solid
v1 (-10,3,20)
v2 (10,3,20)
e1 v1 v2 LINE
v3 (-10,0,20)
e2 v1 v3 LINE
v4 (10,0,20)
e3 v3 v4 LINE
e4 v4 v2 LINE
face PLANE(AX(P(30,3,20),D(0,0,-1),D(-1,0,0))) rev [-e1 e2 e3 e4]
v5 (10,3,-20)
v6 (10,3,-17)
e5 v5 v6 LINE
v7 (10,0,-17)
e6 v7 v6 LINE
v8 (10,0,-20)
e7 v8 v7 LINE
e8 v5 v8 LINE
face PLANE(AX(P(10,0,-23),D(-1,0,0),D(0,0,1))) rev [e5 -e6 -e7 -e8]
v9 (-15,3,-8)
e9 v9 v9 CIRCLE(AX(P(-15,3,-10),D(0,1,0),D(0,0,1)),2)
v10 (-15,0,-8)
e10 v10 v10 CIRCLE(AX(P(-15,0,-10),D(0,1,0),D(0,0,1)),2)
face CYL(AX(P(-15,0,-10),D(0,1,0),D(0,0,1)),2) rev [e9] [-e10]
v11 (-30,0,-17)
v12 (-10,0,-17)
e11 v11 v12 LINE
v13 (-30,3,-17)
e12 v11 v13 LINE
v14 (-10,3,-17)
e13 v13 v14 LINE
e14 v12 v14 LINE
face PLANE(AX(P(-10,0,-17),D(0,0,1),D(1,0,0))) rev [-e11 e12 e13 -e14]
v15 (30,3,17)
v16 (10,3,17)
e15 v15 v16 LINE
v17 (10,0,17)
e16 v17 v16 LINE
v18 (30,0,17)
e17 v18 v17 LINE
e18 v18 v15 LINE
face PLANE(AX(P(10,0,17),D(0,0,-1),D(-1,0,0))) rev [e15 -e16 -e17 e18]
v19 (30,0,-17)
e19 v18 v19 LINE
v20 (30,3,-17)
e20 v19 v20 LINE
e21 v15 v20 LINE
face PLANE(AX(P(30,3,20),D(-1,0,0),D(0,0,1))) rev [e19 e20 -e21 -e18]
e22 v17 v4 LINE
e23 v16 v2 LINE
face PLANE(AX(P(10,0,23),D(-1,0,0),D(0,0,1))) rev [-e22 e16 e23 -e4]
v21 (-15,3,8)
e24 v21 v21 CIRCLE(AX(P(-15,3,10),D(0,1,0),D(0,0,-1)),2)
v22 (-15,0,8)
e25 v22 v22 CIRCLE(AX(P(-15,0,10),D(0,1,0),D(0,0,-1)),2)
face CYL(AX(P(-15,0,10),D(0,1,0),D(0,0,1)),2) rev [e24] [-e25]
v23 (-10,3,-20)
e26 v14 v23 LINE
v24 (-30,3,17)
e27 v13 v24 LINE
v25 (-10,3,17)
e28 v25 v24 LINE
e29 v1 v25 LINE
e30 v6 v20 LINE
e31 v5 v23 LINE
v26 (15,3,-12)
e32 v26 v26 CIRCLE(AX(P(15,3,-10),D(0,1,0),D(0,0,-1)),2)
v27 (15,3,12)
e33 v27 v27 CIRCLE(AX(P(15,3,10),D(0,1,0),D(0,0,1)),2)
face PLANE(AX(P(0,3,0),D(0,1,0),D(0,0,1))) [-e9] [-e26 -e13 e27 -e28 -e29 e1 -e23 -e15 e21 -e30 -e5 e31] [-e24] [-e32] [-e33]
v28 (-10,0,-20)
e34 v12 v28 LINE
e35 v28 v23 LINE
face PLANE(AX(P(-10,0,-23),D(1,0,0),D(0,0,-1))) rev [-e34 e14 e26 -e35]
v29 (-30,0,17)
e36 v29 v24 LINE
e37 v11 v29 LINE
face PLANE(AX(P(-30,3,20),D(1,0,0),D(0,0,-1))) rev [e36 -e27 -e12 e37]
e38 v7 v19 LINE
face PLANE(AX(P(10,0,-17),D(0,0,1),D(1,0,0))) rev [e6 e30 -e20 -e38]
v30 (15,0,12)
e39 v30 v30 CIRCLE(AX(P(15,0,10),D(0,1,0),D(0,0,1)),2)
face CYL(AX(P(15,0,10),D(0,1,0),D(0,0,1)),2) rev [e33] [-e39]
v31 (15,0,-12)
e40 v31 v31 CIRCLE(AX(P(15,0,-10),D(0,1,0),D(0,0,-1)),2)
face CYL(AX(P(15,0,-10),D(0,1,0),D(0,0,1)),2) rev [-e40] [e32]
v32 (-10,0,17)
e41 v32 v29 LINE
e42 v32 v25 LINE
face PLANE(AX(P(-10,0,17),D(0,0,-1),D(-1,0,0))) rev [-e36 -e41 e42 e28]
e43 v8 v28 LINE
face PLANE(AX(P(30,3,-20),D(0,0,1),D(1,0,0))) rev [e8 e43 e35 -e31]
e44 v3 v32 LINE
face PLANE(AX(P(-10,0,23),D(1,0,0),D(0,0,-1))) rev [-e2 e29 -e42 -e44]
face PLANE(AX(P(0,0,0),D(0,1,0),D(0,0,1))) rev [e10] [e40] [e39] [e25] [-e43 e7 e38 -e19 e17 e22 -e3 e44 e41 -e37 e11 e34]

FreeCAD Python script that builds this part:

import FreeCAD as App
import Part
import Sketcher
from FreeCAD import Vector

doc = App.newDocument("Part")
body = doc.addObject("PartDesign::Body", "Body")

sketch1 = doc.addObject("Sketcher::SketchObject", "Sketch")
body.addObject(sketch1)
sketch1.AttachmentSupport = (doc.XZ_Plane, [""])
sketch1.MapMode = "FlatFace"
sketch1.addGeometry([
    Part.LineSegment(Vector(-30, -20, 0), Vector(-30, 20, 0)),
    Part.LineSegment(Vector(-30, 20, 0), Vector(30, 20, 0)),
    Part.LineSegment(Vector(30, 20, 0), Vector(30, -20, 0)),
    Part.LineSegment(Vector(30, -20, 0), Vector(-30, -20, 0)),
], False)
sketch1.addConstraint([
    Sketcher.Constraint("Coincident", 0, 2, 1, 1),
    Sketcher.Constraint("Coincident", 1, 2, 2, 1),
    Sketcher.Constraint("Coincident", 2, 2, 3, 1),
    Sketcher.Constraint("Coincident", 3, 2, 0, 1),
    Sketcher.Constraint("Vertical", 0),
    Sketcher.Constraint("Horizontal", 1),
    Sketcher.Constraint("Vertical", 2),
    Sketcher.Constraint("Horizontal", 3),
    Sketcher.Constraint("Symmetric", 0, 2, 2, 2, -1, 1),
    Sketcher.Constraint("DistanceX", 1, 1, 1, 2, 60.0),
    Sketcher.Constraint("DistanceY", 0, 1, 0, 2, 40.0),
])
pad1 = doc.addObject("PartDesign::Pad", "Pad")
body.addObject(pad1)
pad1.Profile = sketch1
pad1.Length = 3
pad1.Reversed = True

sketch2 = doc.addObject("Sketcher::SketchObject", "Sketch001")
body.addObject(sketch2)
sketch2.AttachmentSupport = (doc.XZ_Plane, [""])
sketch2.MapMode = "FlatFace"
sketch2.AttachmentOffset = App.Placement(Vector(0, 0, -3), App.Rotation())
sketch2.addGeometry([
    Part.LineSegment(Vector(-30, 17, 0), Vector(-30, 23, 0)),
    Part.LineSegment(Vector(-30, 23, 0), Vector(-10, 23, 0)),
    Part.LineSegment(Vector(-10, 23, 0), Vector(-10, 17, 0)),
    Part.LineSegment(Vector(-10, 17, 0), Vector(-30, 17, 0)),
    Part.LineSegment(Vector(10, 17, 0), Vector(10, 23, 0)),
    Part.LineSegment(Vector(10, 23, 0), Vector(30, 23, 0)),
    Part.LineSegment(Vector(30, 23, 0), Vector(30, 17, 0)),
    Part.LineSegment(Vector(30, 17, 0), Vector(10, 17, 0)),
    Part.LineSegment(Vector(10, -23, 0), Vector(10, -17, 0)),
    Part.LineSegment(Vector(10, -17, 0), Vector(30, -17, 0)),
    Part.LineSegment(Vector(30, -17, 0), Vector(30, -23, 0)),
    Part.LineSegment(Vector(30, -23, 0), Vector(10, -23, 0)),
    Part.LineSegment(Vector(-30, -23, 0), Vector(-30, -17, 0)),
    Part.LineSegment(Vector(-30, -17, 0), Vector(-10, -17, 0)),
    Part.LineSegment(Vector(-10, -17, 0), Vector(-10, -23, 0)),
    Part.LineSegment(Vector(-10, -23, 0), Vector(-30, -23, 0)),
], False)
sketch2.addConstraint([
    Sketcher.Constraint("Coincident", 0, 2, 1, 1),
    Sketcher.Constraint("Coincident", 1, 2, 2, 1),
    Sketcher.Constraint("Coincident", 2, 2, 3, 1),
    Sketcher.Constraint("Coincident", 3, 2, 0, 1),
    Sketcher.Constraint("Coincident", 4, 2, 5, 1),
    Sketcher.Constraint("Coincident", 5, 2, 6, 1),
    Sketcher.Constraint("Coincident", 6, 2, 7, 1),
    Sketcher.Constraint("Coincident", 7, 2, 4, 1),
    Sketcher.Constraint("Coincident", 8, 2, 9, 1),
    Sketcher.Constraint("Coincident", 9, 2, 10, 1),
    Sketcher.Constraint("Coincident", 10, 2, 11, 1),
    Sketcher.Constraint("Coincident", 11, 2, 8, 1),
    Sketcher.Constraint("Coincident", 12, 2, 13, 1),
    Sketcher.Constraint("Coincident", 13, 2, 14, 1),
    Sketcher.Constraint("Coincident", 14, 2, 15, 1),
    Sketcher.Constraint("Coincident", 15, 2, 12, 1),
    Sketcher.Constraint("Vertical", 0),
    Sketcher.Constraint("Horizontal", 1),
    Sketcher.Constraint("Vertical", 2),
    Sketcher.Constraint("Horizontal", 3),
    Sketcher.Constraint("Vertical", 4),
    Sketcher.Constraint("Horizontal", 5),
    Sketcher.Constraint("Vertical", 6),
    Sketcher.Constraint("Horizontal", 7),
    Sketcher.Constraint("Vertical", 8),
    Sketcher.Constraint("Horizontal", 9),
    Sketcher.Constraint("Vertical", 10),
    Sketcher.Constraint("Horizontal", 11),
    Sketcher.Constraint("Vertical", 12),
    Sketcher.Constraint("Horizontal", 13),
    Sketcher.Constraint("Vertical", 14),
    Sketcher.Constraint("Horizontal", 15),
    Sketcher.Constraint("Symmetric", 2, 2, 8, 2, -1, 1),
    Sketcher.Constraint("Symmetric", 0, 2, 10, 2, -1, 1),
    Sketcher.Constraint("Symmetric", 6, 2, 12, 2, -1, 1),
    Sketcher.Constraint("Symmetric", 4, 2, 14, 2, -1, 1),
    Sketcher.Constraint("Symmetric", 1, 2, 4, 2, -2),
    Sketcher.Constraint("Symmetric", 3, 2, 6, 2, -2),
    Sketcher.Constraint("DistanceX", 1, 1, 1, 2, 20.0),
    Sketcher.Constraint("DistanceY", 0, 1, 0, 2, 6.0),
    Sketcher.Constraint("DistanceX", 0, 2, -1, 1, 30.0),
    Sketcher.Constraint("DistanceY", -1, 1, 0, 2, 23.0),
])
pocket1 = doc.addObject("PartDesign::Pocket", "Pocket")
body.addObject(pocket1)
pocket1.Profile = sketch2
pocket1.Length = 3
pocket1.Reversed = True

sketch3 = doc.addObject("Sketcher::SketchObject", "Sketch002")
body.addObject(sketch3)
sketch3.AttachmentSupport = (doc.XZ_Plane, [""])
sketch3.MapMode = "FlatFace"
sketch3.AttachmentOffset = App.Placement(Vector(0, 0, -3), App.Rotation())
sketch3.addGeometry([
    Part.Circle(Vector(-15, -10, 0), Vector(0, 0, 1), 2),
    Part.Circle(Vector(-15, 10, 0), Vector(0, 0, 1), 2),
    Part.Circle(Vector(15, 10, 0), Vector(0, 0, 1), 2),
    Part.Circle(Vector(15, -10, 0), Vector(0, 0, 1), 2),
], False)
sketch3.addConstraint([
    Sketcher.Constraint("Equal", 0, 1),
    Sketcher.Constraint("Equal", 1, 2),
    Sketcher.Constraint("Equal", 2, 3),
    Sketcher.Constraint("Symmetric", 0, 3, 2, 3, -1, 1),
    Sketcher.Constraint("Symmetric", 1, 3, 3, 3, -1, 1),
    Sketcher.Constraint("Symmetric", 1, 3, 2, 3, -2),
    Sketcher.Constraint("Diameter", 0, 4.0),
    Sketcher.Constraint("DistanceX", 0, 3, -1, 1, 15.0),
    Sketcher.Constraint("DistanceY", 0, 3, -1, 1, 10.0),
])
pocket2 = doc.addObject("PartDesign::Pocket", "Pocket001")
body.addObject(pocket2)
pocket2.Profile = sketch3
pocket2.Length = 3
pocket2.Reversed = True

doc.recompute()
